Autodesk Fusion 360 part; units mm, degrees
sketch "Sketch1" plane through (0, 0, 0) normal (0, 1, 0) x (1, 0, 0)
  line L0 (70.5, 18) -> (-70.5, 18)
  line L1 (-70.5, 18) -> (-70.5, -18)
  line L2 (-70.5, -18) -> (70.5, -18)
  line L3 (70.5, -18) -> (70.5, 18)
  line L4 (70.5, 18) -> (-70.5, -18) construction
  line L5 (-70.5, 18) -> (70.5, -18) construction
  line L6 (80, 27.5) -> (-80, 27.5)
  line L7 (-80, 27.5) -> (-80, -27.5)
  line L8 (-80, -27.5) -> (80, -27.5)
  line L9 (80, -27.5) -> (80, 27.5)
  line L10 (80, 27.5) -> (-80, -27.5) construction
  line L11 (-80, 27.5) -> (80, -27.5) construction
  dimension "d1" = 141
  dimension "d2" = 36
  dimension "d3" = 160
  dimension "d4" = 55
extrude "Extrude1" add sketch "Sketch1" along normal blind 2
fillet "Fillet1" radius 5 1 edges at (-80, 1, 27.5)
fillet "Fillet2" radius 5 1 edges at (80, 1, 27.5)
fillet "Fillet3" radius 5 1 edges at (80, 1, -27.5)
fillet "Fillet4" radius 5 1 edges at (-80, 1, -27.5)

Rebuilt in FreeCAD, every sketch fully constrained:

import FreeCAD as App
import Part
import Sketcher

V = App.Vector
Q = App.Units.Quantity


def edges_at(feature, points):
    """Names of the edges that pass closest to the given points."""
    edges = feature.Shape.Edges
    near = lambda p: min(range(len(edges)), key=lambda i: edges[i].distToShape(Part.Vertex(*p))[0])
    return sorted({f"Edge{near(p) + 1}" for p in points})

doc = App.newDocument("Part")
params = doc.addObject("Spreadsheet::Sheet", "Params")
for row, (alias, value) in enumerate([
    ("sketch1_width", "160 mm"),
    ("sketch1_width2", "141 mm"),
    ("sketch1_height", "55 mm"),
    ("sketch1_height2", "36 mm"),
    ("pad1_length", "2 mm"),
    ("fillet_radius", "5 mm"),
    ("fillet2_radius", "5 mm"),
    ("fillet3_radius", "5 mm"),
    ("fillet4_radius", "5 mm"),
], start=1):
    params.set(f"A{row}", alias)
    params.set(f"B{row}", "=" + value)
    params.setAlias(f"B{row}", alias)

body = doc.addObject("PartDesign::Body", "Body")

# Sketch on XZ plane
sketch1 = doc.addObject("Sketcher::SketchObject", "Sketch")
body.addObject(sketch1)
sketch1.AttachmentSupport = (doc.XZ_Plane, [""])
sketch1.MapMode = "FlatFace"
sketch1.addGeometry([
    Part.LineSegment(V(80, 28, 0), V(80, -28, 0)),  # 0
    Part.LineSegment(V(80, -28, 0), V(-80, -28, 0)),  # 1
    Part.LineSegment(V(-80, -28, 0), V(-80, 28, 0)),  # 2
    Part.LineSegment(V(-80, 28, 0), V(80, 28, 0)),  # 3
    Part.LineSegment(V(-70, -18, 0), V(70, -18, 0)),  # 4
    Part.LineSegment(V(70, -18, 0), V(70, 18, 0)),  # 5
    Part.LineSegment(V(70, 18, 0), V(-70, 18, 0)),  # 6
    Part.LineSegment(V(-70, 18, 0), V(-70, -18, 0)),  # 7
], False)
sketch1.addConstraint([
    Sketcher.Constraint("Coincident", 0, 2, 1, 1),
    Sketcher.Constraint("Coincident", 1, 2, 2, 1),
    Sketcher.Constraint("Coincident", 2, 2, 3, 1),
    Sketcher.Constraint("Coincident", 3, 2, 0, 1),
    Sketcher.Constraint("Coincident", 4, 2, 5, 1),
    Sketcher.Constraint("Coincident", 5, 2, 6, 1),
    Sketcher.Constraint("Coincident", 6, 2, 7, 1),
    Sketcher.Constraint("Coincident", 7, 2, 4, 1),
    Sketcher.Constraint("Vertical", 0),
    Sketcher.Constraint("Horizontal", 1),
    Sketcher.Constraint("Vertical", 2),
    Sketcher.Constraint("Horizontal", 3),
    Sketcher.Constraint("Horizontal", 4),
    Sketcher.Constraint("Vertical", 5),
    Sketcher.Constraint("Horizontal", 6),
    Sketcher.Constraint("Vertical", 7),
    Sketcher.Constraint("Symmetric", 0, 2, 2, 2, -1, 1),
    Sketcher.Constraint("Symmetric", 4, 2, 6, 2, -1, 1),
    Sketcher.Constraint("DistanceX", 1, 2, 1, 1, Q("160 mm")),
    Sketcher.Constraint("DistanceX", 4, 1, 4, 2, Q("141 mm")),
    Sketcher.Constraint("DistanceY", 0, 2, 0, 1, Q("55 mm")),
    Sketcher.Constraint("DistanceY", 5, 1, 5, 2, Q("36 mm")),
])
sketch1.setExpression("Constraints[18]", "Params.sketch1_width")
sketch1.setExpression("Constraints[19]", "Params.sketch1_width2")
sketch1.setExpression("Constraints[20]", "Params.sketch1_height")
sketch1.setExpression("Constraints[21]", "Params.sketch1_height2")
pad1 = doc.addObject("PartDesign::Pad", "Pad")
body.addObject(pad1)
pad1.Profile = sketch1
pad1.setExpression("Length", "Params.pad1_length")
pad1.Reversed = True
doc.recompute()

fillet = doc.addObject("PartDesign::Fillet", "Fillet")
body.addObject(fillet)
fillet.Base = (pad1, edges_at(pad1, [(-80, 1, 27.5)]))
fillet.setExpression("Radius", "Params.fillet_radius")
doc.recompute()

fillet2 = doc.addObject("PartDesign::Fillet", "Fillet001")
body.addObject(fillet2)
fillet2.Base = (fillet, edges_at(fillet, [(80, 1, 27.5)]))
fillet2.setExpression("Radius", "Params.fillet2_radius")
doc.recompute()

fillet3 = doc.addObject("PartDesign::Fillet", "Fillet002")
body.addObject(fillet3)
fillet3.Base = (fillet2, edges_at(fillet2, [(80, 1, -27.5)]))
fillet3.setExpression("Radius", "Params.fillet3_radius")
doc.recompute()

fillet4 = doc.addObject("PartDesign::Fillet", "Fillet003")
body.addObject(fillet4)
fillet4.Base = (fillet3, edges_at(fillet3, [(-80, 1, -27.5)]))
fillet4.setExpression("Radius", "Params.fillet4_radius")

doc.recompute()
